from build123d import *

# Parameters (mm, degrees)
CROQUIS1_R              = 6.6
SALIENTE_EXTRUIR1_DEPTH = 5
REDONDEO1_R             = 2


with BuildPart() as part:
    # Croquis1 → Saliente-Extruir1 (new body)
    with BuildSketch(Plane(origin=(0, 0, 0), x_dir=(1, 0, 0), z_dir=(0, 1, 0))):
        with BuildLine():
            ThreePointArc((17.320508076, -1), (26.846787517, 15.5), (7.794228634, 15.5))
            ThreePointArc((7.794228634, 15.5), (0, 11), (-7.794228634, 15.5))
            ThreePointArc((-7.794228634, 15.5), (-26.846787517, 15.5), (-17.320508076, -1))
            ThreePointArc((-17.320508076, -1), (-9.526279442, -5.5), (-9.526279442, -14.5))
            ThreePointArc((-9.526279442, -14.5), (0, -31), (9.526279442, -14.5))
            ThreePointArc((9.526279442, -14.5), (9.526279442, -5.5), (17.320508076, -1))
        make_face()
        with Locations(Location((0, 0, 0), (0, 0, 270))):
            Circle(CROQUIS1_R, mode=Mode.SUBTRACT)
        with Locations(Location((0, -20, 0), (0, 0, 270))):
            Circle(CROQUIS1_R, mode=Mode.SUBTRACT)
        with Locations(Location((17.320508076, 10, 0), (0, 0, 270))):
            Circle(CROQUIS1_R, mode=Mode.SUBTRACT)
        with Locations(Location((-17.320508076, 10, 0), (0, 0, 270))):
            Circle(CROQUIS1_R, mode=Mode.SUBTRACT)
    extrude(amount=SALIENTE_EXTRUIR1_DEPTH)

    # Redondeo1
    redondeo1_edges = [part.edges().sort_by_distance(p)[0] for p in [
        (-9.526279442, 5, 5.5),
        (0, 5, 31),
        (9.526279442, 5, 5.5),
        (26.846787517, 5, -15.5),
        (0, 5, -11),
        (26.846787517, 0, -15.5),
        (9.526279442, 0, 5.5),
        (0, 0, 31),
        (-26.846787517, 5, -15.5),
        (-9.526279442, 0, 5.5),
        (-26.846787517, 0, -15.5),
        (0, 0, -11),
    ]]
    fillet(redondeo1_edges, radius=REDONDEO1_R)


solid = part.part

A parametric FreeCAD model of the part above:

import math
import FreeCAD as App
import Part
import Sketcher


def edges_at(feature, points):
    """Names of the edges that pass closest to the given points."""
    edges = feature.Shape.Edges
    near = lambda p: min(range(len(edges)), key=lambda i: edges[i].distToShape(Part.Vertex(*p))[0])
    return sorted({f"Edge{near(p) + 1}" for p in points})

doc = App.newDocument("Part")
params = doc.addObject("Spreadsheet::Sheet", "Params")
for row, (alias, value) in enumerate([
    ("sketch1_radius", "11 mm"),
    ("sketch1_radius2", "9 mm"),
    ("sketch1_diameter", "13.2 mm"),
    ("pad1_length", "5 mm"),
    ("fillet_radius", "2 mm"),
], start=1):
    params.set(f"A{row}", alias)
    params.set(f"B{row}", "=" + value)
    params.setAlias(f"B{row}", alias)

body = doc.addObject("PartDesign::Body", "Body")

# Sketch on XZ plane
sketch1 = doc.addObject("Sketcher::SketchObject", "Sketch")
body.addObject(sketch1)
sketch1.AttachmentSupport = (doc.XZ_Plane, [""])
sketch1.MapMode = "FlatFace"
sketch1.addGeometry(Part.ArcOfCircle(Part.Circle(App.Vector(17, -10, 0), App.Vector(0, 0, 1), 11), math.radians(-150), math.radians(90)), False)
sketch1.addGeometry(Part.ArcOfCircle(Part.Circle(App.Vector(0, -20, 0), App.Vector(0, 0, 1), 9), math.radians(30), math.radians(150)), False)
sketch1.addGeometry(Part.ArcOfCircle(Part.Circle(App.Vector(-17, -10, 0), App.Vector(0, 0, 1), 11), math.radians(90), math.radians(330)), False)
sketch1.addGeometry(Part.ArcOfCircle(Part.Circle(App.Vector(-17, 10, 0), App.Vector(0, 0, 1), 9), math.radians(-90), math.radians(30)), False)
sketch1.addGeometry(Part.ArcOfCircle(Part.Circle(App.Vector(0, 20, 0), App.Vector(0, 0, 1), 11), math.radians(-30), math.radians(210)), False)
sketch1.addGeometry(Part.ArcOfCircle(Part.Circle(App.Vector(17, 10, 0), App.Vector(0, 0, 1), 9), math.radians(150), math.radians(270)), False)
sketch1.addGeometry(Part.Circle(App.Vector(0, 20, 0), App.Vector(0, 0, 1), 7), False)
sketch1.addGeometry(Part.Circle(App.Vector(-17, -10, 0), App.Vector(0, 0, 1), 7), False)
sketch1.addGeometry(Part.Circle(App.Vector(0, 0, 0), App.Vector(0, 0, 1), 7), False)
sketch1.addGeometry(Part.Circle(App.Vector(17, -10, 0), App.Vector(0, 0, 1), 7), False)
sketch1.addConstraint(Sketcher.Constraint("Tangent", 0, 1, 1, 1))
sketch1.addConstraint(Sketcher.Constraint("Tangent", 1, 2, 2, 2))
sketch1.addConstraint(Sketcher.Constraint("Tangent", 2, 1, 3, 1))
sketch1.addConstraint(Sketcher.Constraint("Tangent", 3, 2, 4, 2))
sketch1.addConstraint(Sketcher.Constraint("Tangent", 4, 1, 5, 1))
sketch1.addConstraint(Sketcher.Constraint("Tangent", 5, 2, 0, 2))
sketch1.addConstraint(Sketcher.Constraint("Coincident", 8, 3, -1, 1))
sketch1.addConstraint(Sketcher.Constraint("Coincident", 6, 3, 4, 3))
sketch1.addConstraint(Sketcher.Constraint("Coincident", 7, 3, 2, 3))
sketch1.addConstraint(Sketcher.Constraint("Coincident", 9, 3, 0, 3))
sketch1.addConstraint(Sketcher.Constraint("Equal", 0, 2))
sketch1.addConstraint(Sketcher.Constraint("Equal", 1, 3))
sketch1.addConstraint(Sketcher.Constraint("Equal", 2, 4))
sketch1.addConstraint(Sketcher.Constraint("Equal", 3, 5))
sketch1.addConstraint(Sketcher.Constraint("Equal", 6, 7))
sketch1.addConstraint(Sketcher.Constraint("Equal", 7, 8))
sketch1.addConstraint(Sketcher.Constraint("Equal", 8, 9))
sketch1.addConstraint(Sketcher.Constraint("Symmetric", 0, 3, 3, 3, -1, 1))
sketch1.addConstraint(Sketcher.Constraint("Symmetric", 0, 3, 2, 3, -2))
sketch1.addConstraint(Sketcher.Constraint("PointOnObject", 4, 3, -2))
sketch1.addConstraint(Sketcher.Constraint("Radius", 0, 11.0))
sketch1.addConstraint(Sketcher.Constraint("Radius", 1, 9.0))
sketch1.addConstraint(Sketcher.Constraint("Diameter", 6, 13.2))
sketch1.addConstraint(Sketcher.Constraint("DistanceY", 1, 3, -1, 1, 20.0))
sketch1.setExpression("Constraints[20]", "Params.sketch1_radius")
sketch1.setExpression("Constraints[21]", "Params.sketch1_radius2")
sketch1.setExpression("Constraints[22]", "Params.sketch1_diameter")
pad1 = doc.addObject("PartDesign::Pad", "Pad")
body.addObject(pad1)
pad1.Profile = sketch1
pad1.setExpression("Length", "Params.pad1_length")
pad1.Reversed = True
doc.recompute()

fillet = doc.addObject("PartDesign::Fillet", "Fillet")
body.addObject(fillet)
fillet.Base = (pad1, edges_at(pad1, [
    (-9.526, 5, 5.5),
    (0, 5, 31),
    (9.526, 5, 5.5),
    (26.847, 5, -15.5),
    (0, 5, -11),
    (26.847, 0, -15.5),
    (9.526, 0, 5.5),
    (0, 0, 31),
    (-26.847, 5, -15.5),
    (-9.526, 0, 5.5),
    (-26.847, 0, -15.5),
    (0, 0, -11),
]))
fillet.setExpression("Radius", "Params.fillet_radius")

doc.recompute()
